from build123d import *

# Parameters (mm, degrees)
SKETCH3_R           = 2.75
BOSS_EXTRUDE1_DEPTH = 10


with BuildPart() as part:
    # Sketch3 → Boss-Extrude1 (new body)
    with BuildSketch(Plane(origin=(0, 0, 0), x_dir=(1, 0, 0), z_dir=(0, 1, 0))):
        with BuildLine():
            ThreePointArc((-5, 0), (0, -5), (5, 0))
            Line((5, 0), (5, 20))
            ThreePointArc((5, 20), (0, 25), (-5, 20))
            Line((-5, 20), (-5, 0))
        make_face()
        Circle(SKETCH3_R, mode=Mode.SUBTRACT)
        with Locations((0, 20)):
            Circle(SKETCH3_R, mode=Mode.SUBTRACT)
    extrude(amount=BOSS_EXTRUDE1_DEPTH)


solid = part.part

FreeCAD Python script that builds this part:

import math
import FreeCAD as App
import Part
import Sketcher

doc = App.newDocument("Part")
params = doc.addObject("Spreadsheet::Sheet", "Params")
for row, (alias, value) in enumerate([
    ("sketch1_radius", "5 mm"),
    ("sketch1_diameter", "5.5 mm"),
    ("sketch1_height", "20 mm"),
    ("pad1_length", "10 mm"),
], start=1):
    params.set(f"A{row}", alias)
    params.set(f"B{row}", "=" + value)
    params.setAlias(f"B{row}", alias)

body = doc.addObject("PartDesign::Body", "Body")

# Sketch on XZ plane
sketch1 = body.newObject("Sketcher::SketchObject", "Sketch")
sketch1.AttachmentSupport = (doc.getObject("XZ_Plane"), [""])
sketch1.MapMode = "FlatFace"
sketch1.addGeometry(Part.ArcOfCircle(Part.Circle(App.Vector(0, 0, 0), App.Vector(0, 0, 1), 5), math.radians(0), math.radians(180)), False)
sketch1.addGeometry(Part.LineSegment(App.Vector(5, 0, 0), App.Vector(5, -20, 0)), False)
sketch1.addGeometry(Part.ArcOfCircle(Part.Circle(App.Vector(0, -20, 0), App.Vector(0, 0, 1), 5), math.radians(180), math.radians(360)), False)
sketch1.addGeometry(Part.LineSegment(App.Vector(-5, -20, 0), App.Vector(-5, 0, 0)), False)
sketch1.addGeometry(Part.Circle(App.Vector(0, 0, 0), App.Vector(0, 0, 1), 2.75), False)
sketch1.addGeometry(Part.Circle(App.Vector(0, -20, 0), App.Vector(0, 0, 1), 2.75), False)
sketch1.addConstraint(Sketcher.Constraint("Tangent", 0, 1, 1, 1))
sketch1.addConstraint(Sketcher.Constraint("Tangent", 1, 2, 2, 2))
sketch1.addConstraint(Sketcher.Constraint("Tangent", 2, 1, 3, 1))
sketch1.addConstraint(Sketcher.Constraint("Tangent", 3, 2, 0, 2))
sketch1.addConstraint(Sketcher.Constraint("Vertical", 1))
sketch1.addConstraint(Sketcher.Constraint("Vertical", 3))
sketch1.addConstraint(Sketcher.Constraint("Coincident", 0, 3, -1, 1))
sketch1.addConstraint(Sketcher.Constraint("Coincident", 4, 3, -1, 1))
sketch1.addConstraint(Sketcher.Constraint("Coincident", 5, 3, 2, 3))
sketch1.addConstraint(Sketcher.Constraint("Equal", 4, 5))
sketch1.addConstraint(Sketcher.Constraint("Radius", 0, 5.0))
sketch1.addConstraint(Sketcher.Constraint("Diameter", 4, 5.5))
sketch1.addConstraint(Sketcher.Constraint("DistanceY", 1, 2, 1, 1, 20.0))
sketch1.setExpression("Constraints[10]", "Params.sketch1_radius")
sketch1.setExpression("Constraints[11]", "Params.sketch1_diameter")
sketch1.setExpression("Constraints[12]", "Params.sketch1_height")
pad1 = body.newObject("PartDesign::Pad", "Pad")
pad1.Profile = sketch1
pad1.setExpression("Length", "Params.pad1_length")
pad1.Reversed = True

doc.recompute()
